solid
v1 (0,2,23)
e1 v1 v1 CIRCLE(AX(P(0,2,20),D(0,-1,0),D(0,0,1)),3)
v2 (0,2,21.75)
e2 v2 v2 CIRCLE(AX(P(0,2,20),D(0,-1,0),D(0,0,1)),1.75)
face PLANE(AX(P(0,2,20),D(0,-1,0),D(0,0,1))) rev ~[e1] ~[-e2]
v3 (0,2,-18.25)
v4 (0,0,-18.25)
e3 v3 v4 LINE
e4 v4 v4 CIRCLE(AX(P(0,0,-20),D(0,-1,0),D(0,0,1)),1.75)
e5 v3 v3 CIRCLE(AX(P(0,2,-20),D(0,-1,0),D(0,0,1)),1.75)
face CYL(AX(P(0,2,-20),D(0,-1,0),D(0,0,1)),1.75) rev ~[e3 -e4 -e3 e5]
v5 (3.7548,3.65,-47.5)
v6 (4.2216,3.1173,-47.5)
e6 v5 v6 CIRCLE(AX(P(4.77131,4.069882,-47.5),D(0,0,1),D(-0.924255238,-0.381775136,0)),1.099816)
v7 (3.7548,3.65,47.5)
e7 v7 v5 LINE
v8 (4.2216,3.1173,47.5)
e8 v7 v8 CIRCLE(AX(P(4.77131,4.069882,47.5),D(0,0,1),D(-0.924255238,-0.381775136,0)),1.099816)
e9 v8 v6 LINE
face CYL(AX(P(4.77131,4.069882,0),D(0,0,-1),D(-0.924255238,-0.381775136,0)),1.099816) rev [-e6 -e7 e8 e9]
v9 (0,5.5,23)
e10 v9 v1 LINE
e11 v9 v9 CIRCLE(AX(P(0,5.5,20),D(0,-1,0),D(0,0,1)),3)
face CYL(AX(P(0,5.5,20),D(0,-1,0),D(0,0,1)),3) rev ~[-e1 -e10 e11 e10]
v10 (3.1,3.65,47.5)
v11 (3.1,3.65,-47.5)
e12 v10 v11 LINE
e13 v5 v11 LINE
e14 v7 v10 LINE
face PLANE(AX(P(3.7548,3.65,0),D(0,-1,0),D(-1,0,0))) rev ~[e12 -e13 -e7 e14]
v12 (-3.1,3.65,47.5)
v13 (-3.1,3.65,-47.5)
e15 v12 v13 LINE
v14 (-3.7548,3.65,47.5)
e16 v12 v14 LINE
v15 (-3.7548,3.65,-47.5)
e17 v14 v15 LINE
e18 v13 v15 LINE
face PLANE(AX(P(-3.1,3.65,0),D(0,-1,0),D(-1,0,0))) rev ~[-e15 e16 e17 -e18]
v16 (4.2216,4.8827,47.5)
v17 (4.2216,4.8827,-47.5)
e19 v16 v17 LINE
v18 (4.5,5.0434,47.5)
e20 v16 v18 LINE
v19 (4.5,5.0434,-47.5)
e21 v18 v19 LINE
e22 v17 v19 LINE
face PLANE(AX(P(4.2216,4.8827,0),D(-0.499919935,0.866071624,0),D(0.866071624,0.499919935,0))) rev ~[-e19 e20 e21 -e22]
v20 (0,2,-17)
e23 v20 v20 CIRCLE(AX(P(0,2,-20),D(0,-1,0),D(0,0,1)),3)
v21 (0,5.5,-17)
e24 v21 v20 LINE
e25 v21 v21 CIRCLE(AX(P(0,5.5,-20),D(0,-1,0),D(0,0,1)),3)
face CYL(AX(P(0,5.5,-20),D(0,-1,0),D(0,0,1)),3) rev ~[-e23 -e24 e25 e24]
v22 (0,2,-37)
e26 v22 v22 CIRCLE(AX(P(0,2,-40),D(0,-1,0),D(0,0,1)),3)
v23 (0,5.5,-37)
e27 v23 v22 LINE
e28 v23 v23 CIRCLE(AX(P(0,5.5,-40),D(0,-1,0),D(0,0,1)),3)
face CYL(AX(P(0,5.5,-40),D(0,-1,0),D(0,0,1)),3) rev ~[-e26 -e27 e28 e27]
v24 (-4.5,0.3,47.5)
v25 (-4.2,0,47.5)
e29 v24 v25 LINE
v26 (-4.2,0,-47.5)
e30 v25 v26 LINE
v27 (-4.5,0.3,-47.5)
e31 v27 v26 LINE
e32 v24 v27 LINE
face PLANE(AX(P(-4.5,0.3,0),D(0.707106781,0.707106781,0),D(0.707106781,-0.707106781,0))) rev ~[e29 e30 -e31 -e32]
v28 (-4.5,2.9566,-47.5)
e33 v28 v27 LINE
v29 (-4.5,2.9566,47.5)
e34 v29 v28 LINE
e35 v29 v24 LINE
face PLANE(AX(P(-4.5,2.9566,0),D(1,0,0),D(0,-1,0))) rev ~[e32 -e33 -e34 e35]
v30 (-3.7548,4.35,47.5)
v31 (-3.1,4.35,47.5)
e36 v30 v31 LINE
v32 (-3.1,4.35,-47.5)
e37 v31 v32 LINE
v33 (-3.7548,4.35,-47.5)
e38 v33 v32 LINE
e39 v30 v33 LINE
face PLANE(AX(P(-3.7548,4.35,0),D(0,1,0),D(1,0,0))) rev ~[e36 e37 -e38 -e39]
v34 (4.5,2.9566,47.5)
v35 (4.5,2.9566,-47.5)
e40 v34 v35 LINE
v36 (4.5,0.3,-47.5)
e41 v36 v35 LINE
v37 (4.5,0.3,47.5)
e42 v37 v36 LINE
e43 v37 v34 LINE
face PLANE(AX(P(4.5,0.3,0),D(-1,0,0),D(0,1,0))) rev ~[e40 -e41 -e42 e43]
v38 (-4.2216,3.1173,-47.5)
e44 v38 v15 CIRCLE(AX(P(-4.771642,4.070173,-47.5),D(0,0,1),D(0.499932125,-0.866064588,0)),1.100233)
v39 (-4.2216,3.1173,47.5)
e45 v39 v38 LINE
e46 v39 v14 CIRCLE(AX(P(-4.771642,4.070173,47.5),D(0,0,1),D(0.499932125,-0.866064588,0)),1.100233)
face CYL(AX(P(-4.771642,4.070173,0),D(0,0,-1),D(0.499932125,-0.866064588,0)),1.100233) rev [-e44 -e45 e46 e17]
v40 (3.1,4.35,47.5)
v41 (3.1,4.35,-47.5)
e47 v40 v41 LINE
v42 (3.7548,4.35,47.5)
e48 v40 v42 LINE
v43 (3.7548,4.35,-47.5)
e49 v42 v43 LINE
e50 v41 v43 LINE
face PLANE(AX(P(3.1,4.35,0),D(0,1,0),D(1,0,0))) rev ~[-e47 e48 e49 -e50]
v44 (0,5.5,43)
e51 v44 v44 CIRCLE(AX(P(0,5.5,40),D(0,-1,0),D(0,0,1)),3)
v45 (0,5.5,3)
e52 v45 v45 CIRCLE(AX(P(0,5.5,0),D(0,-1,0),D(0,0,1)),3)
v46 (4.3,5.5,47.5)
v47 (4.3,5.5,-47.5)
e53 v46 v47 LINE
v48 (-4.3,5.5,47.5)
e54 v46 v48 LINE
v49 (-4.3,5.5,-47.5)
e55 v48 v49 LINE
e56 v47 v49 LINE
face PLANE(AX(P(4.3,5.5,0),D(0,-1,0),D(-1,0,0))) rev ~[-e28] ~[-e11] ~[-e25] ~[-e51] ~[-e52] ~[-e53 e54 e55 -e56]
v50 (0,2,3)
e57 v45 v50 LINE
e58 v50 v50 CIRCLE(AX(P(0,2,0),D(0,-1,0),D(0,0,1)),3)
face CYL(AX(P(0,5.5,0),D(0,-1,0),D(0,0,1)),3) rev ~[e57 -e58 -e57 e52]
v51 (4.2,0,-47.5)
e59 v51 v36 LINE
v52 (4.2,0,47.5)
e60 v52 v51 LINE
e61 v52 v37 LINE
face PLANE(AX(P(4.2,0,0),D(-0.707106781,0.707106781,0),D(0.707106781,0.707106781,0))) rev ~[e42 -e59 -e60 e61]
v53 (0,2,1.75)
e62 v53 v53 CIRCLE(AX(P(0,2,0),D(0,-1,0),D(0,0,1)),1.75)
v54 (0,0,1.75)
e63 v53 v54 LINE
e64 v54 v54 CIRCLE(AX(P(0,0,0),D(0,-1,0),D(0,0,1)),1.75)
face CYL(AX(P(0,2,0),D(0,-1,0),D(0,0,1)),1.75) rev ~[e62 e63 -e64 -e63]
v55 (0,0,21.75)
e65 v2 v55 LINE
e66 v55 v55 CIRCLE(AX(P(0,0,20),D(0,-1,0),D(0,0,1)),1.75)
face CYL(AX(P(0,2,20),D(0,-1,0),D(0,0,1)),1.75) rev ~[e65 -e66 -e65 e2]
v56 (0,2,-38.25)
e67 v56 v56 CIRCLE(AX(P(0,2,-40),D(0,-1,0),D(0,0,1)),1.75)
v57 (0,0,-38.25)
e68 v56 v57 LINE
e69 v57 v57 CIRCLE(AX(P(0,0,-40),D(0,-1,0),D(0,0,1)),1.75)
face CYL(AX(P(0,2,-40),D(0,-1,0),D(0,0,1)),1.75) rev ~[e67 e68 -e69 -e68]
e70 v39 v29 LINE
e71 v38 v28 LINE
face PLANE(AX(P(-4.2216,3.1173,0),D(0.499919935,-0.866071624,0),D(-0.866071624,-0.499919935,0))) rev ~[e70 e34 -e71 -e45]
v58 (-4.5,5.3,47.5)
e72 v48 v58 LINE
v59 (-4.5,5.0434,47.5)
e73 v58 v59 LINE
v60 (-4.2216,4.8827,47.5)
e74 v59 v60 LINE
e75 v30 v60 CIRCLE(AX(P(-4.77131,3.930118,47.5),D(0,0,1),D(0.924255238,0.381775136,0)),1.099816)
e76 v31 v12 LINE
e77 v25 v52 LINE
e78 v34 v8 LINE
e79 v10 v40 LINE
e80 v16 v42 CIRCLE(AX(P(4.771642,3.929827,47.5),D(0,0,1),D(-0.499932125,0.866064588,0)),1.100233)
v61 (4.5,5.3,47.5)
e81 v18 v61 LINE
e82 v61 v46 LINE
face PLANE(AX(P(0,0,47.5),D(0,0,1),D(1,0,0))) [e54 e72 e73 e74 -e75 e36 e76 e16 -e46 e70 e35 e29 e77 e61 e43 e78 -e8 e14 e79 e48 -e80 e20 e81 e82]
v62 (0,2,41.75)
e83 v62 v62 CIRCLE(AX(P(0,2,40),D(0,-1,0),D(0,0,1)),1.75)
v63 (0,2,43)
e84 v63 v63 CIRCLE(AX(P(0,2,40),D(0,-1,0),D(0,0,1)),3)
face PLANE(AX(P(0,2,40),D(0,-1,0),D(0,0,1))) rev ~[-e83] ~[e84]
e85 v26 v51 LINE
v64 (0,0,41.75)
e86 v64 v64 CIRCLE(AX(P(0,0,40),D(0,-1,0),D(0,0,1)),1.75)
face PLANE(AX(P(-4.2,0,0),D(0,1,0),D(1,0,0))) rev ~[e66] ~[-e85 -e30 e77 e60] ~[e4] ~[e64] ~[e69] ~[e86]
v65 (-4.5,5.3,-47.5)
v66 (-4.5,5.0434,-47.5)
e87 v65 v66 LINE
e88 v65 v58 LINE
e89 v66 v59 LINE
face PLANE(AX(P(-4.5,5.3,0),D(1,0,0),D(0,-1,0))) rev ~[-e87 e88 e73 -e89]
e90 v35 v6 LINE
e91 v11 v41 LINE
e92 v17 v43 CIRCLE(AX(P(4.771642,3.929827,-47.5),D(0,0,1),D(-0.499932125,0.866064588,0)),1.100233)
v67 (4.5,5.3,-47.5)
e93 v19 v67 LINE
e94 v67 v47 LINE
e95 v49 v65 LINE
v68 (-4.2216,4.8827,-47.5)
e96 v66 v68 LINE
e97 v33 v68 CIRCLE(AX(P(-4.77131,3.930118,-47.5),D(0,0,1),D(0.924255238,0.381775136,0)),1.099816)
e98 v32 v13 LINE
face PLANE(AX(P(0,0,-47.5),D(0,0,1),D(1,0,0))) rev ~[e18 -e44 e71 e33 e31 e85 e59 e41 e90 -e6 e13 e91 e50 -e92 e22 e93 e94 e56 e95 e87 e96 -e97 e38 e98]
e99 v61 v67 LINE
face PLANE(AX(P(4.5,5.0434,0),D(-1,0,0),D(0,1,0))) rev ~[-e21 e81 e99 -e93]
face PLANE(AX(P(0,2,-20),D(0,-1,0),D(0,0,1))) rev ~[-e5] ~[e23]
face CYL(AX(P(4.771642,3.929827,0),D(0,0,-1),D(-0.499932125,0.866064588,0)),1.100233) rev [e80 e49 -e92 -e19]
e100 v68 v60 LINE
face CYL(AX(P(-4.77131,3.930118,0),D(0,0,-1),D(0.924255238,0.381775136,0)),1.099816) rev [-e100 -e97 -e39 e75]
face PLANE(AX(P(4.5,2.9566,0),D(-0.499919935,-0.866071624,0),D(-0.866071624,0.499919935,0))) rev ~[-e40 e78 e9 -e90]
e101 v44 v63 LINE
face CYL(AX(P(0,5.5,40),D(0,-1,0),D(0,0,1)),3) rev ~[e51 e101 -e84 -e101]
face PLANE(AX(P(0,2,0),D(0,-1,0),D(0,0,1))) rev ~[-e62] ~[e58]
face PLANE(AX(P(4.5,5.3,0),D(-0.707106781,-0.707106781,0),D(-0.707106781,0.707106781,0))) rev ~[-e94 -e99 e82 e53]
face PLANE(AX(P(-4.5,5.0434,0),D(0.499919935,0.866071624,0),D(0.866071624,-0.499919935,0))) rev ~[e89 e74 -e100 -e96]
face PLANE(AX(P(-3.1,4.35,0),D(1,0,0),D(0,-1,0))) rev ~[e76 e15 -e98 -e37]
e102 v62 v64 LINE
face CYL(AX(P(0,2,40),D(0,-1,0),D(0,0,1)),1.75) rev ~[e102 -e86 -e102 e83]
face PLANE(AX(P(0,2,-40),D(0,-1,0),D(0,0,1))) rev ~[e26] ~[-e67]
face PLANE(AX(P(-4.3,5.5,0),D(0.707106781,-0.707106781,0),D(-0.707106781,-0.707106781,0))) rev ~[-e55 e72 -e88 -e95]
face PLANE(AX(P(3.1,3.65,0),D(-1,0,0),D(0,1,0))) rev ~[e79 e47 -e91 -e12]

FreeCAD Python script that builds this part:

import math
import FreeCAD as App
import Part
import Sketcher
from FreeCAD import Vector
Q = App.Units.Quantity

doc = App.newDocument("Part")
body = doc.addObject("PartDesign::Body", "Body")

# Sketch on XY plane
sketch1 = doc.addObject("Sketcher::SketchObject", "Sketch")
body.addObject(sketch1)
sketch1.AttachmentSupport = (doc.XY_Plane, [""])
sketch1.MapMode = "FlatFace"
sketch1.addGeometry([
    Part.LineSegment(Vector(-4.3, 5.5, 0), Vector(-4.5, 5.3, 0)),  # 0
    Part.LineSegment(Vector(-4.5, 5.3, 0), Vector(-4.5, 5.04, 0)),  # 1
    Part.LineSegment(Vector(-4.5, 5.04, 0), Vector(-4.22, 4.88, 0)),  # 2
    Part.ArcOfCircle(Part.Circle(Vector(-4.77, 3.93, 0), Vector(0, 0, 1), 1.1), math.radians(22), math.radians(60)),  # 3
    Part.LineSegment(Vector(-3.75, 4.35, 0), Vector(-3.1, 4.35, 0)),  # 4
    Part.LineSegment(Vector(-3.1, 4.35, 0), Vector(-3.1, 3.65, 0)),  # 5
    Part.LineSegment(Vector(-3.1, 3.65, 0), Vector(-3.75, 3.65, 0)),  # 6
    Part.ArcOfCircle(Part.Circle(Vector(-4.77, 4.07, 0), Vector(0, 0, 1), 1.1), math.radians(-60), math.radians(-22)),  # 7
    Part.LineSegment(Vector(-4.22, 3.12, 0), Vector(-4.5, 2.96, 0)),  # 8
    Part.LineSegment(Vector(-4.5, 2.96, 0), Vector(-4.5, 0.3, 0)),  # 9
    Part.LineSegment(Vector(-4.5, 0.3, 0), Vector(-4.2, 0, 0)),  # 10
    Part.LineSegment(Vector(-4.2, 0, 0), Vector(4.2, 0, 0)),  # 11
    Part.LineSegment(Vector(4.2, 0, 0), Vector(4.5, 0.3, 0)),  # 12
    Part.LineSegment(Vector(4.5, 0.3, 0), Vector(4.5, 2.96, 0)),  # 13
    Part.LineSegment(Vector(4.5, 2.96, 0), Vector(4.22, 3.12, 0)),  # 14
    Part.ArcOfCircle(Part.Circle(Vector(4.77, 4.07, 0), Vector(0, 0, 1), 1.1), math.radians(-158), math.radians(-120)),  # 15
    Part.LineSegment(Vector(3.75, 3.65, 0), Vector(3.1, 3.65, 0)),  # 16
    Part.LineSegment(Vector(3.1, 3.65, 0), Vector(3.1, 4.35, 0)),  # 17
    Part.LineSegment(Vector(3.1, 4.35, 0), Vector(3.75, 4.35, 0)),  # 18
    Part.ArcOfCircle(Part.Circle(Vector(4.77, 3.93, 0), Vector(0, 0, 1), 1.1), math.radians(120), math.radians(158)),  # 19
    Part.LineSegment(Vector(4.22, 4.88, 0), Vector(4.5, 5.04, 0)),  # 20
    Part.LineSegment(Vector(4.5, 5.04, 0), Vector(4.5, 5.3, 0)),  # 21
    Part.LineSegment(Vector(4.5, 5.3, 0), Vector(4.3, 5.5, 0)),  # 22
    Part.LineSegment(Vector(4.3, 5.5, 0), Vector(-4.3, 5.5, 0)),  # 23
], False)
sketch1.addConstraint([
    Sketcher.Constraint("Coincident", 0, 2, 1, 1),
    Sketcher.Constraint("Coincident", 1, 2, 2, 1),
    Sketcher.Constraint("Tangent", 2, 2, 3, 2),
    Sketcher.Constraint("Coincident", 3, 1, 4, 1),
    Sketcher.Constraint("Coincident", 4, 2, 5, 1),
    Sketcher.Constraint("Coincident", 5, 2, 6, 1),
    Sketcher.Constraint("Coincident", 6, 2, 7, 2),
    Sketcher.Constraint("Tangent", 7, 1, 8, 1),
    Sketcher.Constraint("Coincident", 8, 2, 9, 1),
    Sketcher.Constraint("Coincident", 9, 2, 10, 1),
    Sketcher.Constraint("Coincident", 10, 2, 11, 1),
    Sketcher.Constraint("Coincident", 11, 2, 12, 1),
    Sketcher.Constraint("Coincident", 12, 2, 13, 1),
    Sketcher.Constraint("Coincident", 13, 2, 14, 1),
    Sketcher.Constraint("Tangent", 14, 2, 15, 2),
    Sketcher.Constraint("Coincident", 15, 1, 16, 1),
    Sketcher.Constraint("Coincident", 16, 2, 17, 1),
    Sketcher.Constraint("Coincident", 17, 2, 18, 1),
    Sketcher.Constraint("Coincident", 18, 2, 19, 2),
    Sketcher.Constraint("Tangent", 19, 1, 20, 1),
    Sketcher.Constraint("Coincident", 20, 2, 21, 1),
    Sketcher.Constraint("Coincident", 21, 2, 22, 1),
    Sketcher.Constraint("Coincident", 22, 2, 23, 1),
    Sketcher.Constraint("Coincident", 23, 2, 0, 1),
    Sketcher.Constraint("Vertical", 1),
    Sketcher.Constraint("Horizontal", 4),
    Sketcher.Constraint("Vertical", 5),
    Sketcher.Constraint("Horizontal", 6),
    Sketcher.Constraint("Vertical", 9),
    Sketcher.Constraint("Horizontal", 11),
    Sketcher.Constraint("Vertical", 13),
    Sketcher.Constraint("Horizontal", 16),
    Sketcher.Constraint("Vertical", 17),
    Sketcher.Constraint("Horizontal", 18),
    Sketcher.Constraint("Vertical", 21),
    Sketcher.Constraint("Horizontal", 23),
    Sketcher.Constraint("Equal", 3, 7),
    Sketcher.Constraint("Equal", 7, 15),
    Sketcher.Constraint("Equal", 15, 19),
    Sketcher.Constraint("Symmetric", 10, 2, 11, 2, -1, 1),
    Sketcher.Constraint("Symmetric", 7, 3, 15, 3, -2),
    Sketcher.Constraint("Symmetric", 3, 3, 19, 3, -2),
    Sketcher.Constraint("Symmetric", 9, 2, 12, 2, -2),
    Sketcher.Constraint("Symmetric", 5, 2, 16, 2, -2),
    Sketcher.Constraint("Symmetric", 1, 2, 20, 2, -2),
    Sketcher.Constraint("Perpendicular", 0, 10),
    Sketcher.Constraint("Perpendicular", 10, 12),
    Sketcher.Constraint("Parallel", 2, 14),
    Sketcher.Constraint("Parallel", 8, 20),
    Sketcher.Constraint("Perpendicular", 12, 22),
    Sketcher.Constraint("Horizontal", 4, 2, 17, 2),
    Sketcher.Constraint("Horizontal", 0, 2, 21, 2),
    Sketcher.Constraint("Vertical", 3, 3, 7, 3),
    Sketcher.Constraint("Vertical", 3, 1, 6, 2),
    Sketcher.Constraint("Vertical", 1, 2, 8, 2),
    Sketcher.Constraint("Radius", 3, Q("1.1 mm")),
    Sketcher.Constraint("DistanceX", 11, 1, 11, 2, Q("8.4 mm")),
    Sketcher.Constraint("DistanceX", 23, 2, 23, 1, Q("8.6 mm")),
    Sketcher.Constraint("DistanceY", 5, 2, 5, 1, Q("0.7 mm")),
    Sketcher.Constraint("DistanceX", 0, 2, -1, 1, Q("4.5 mm")),
    Sketcher.Constraint("DistanceY", -1, 1, 0, 2, Q("5.3 mm")),
    Sketcher.Constraint("DistanceX", 4, 2, -1, 1, Q("3.1 mm")),
    Sketcher.Constraint("DistanceY", -1, 1, 3, 3, Q("3.93 mm")),
    Sketcher.Constraint("DistanceY", -1, 1, 7, 3, Q("4.07 mm")),
    Sketcher.Constraint("DistanceX", 7, 3, 2, 2, Q("0.55 mm")),
    Sketcher.Constraint("DistanceX", 4, 1, 4, 2, Q("0.6548 mm")),
])
pad1 = doc.addObject("PartDesign::Pad", "Pad")
body.addObject(pad1)
pad1.Profile = sketch1
pad1.Length = 95
pad1.Midplane = True

# Sketch on XZ plane
sketch2 = doc.addObject("Sketcher::SketchObject", "Sketch001")
body.addObject(sketch2)
sketch2.AttachmentSupport = (doc.XZ_Plane, [""])
sketch2.MapMode = "FlatFace"
sketch2.AttachmentOffset = App.Placement(Vector(0, 0, -5.5), App.Rotation())
sketch2.addGeometry(Part.Circle(Vector(0, -40, 0), Vector(0, 0, 1), 1.8), False)
sketch2.addConstraint([
    Sketcher.Constraint("PointOnObject", 0, 3, -2),
    Sketcher.Constraint("Diameter", 0, Q("3.5 mm")),
    Sketcher.Constraint("DistanceY", 0, 3, -1, 1, Q("40 mm")),
])
doc.recompute()
hole = doc.addObject("PartDesign::Hole", "Hole")
body.addObject(hole)
hole.Profile = sketch2
hole.ThreadType = "None"
hole.Diameter = 3.5
hole.DepthType = "Dimension"
hole.Depth = 5.5
hole.DrillPoint = "Flat"
hole.HoleCutType = "Counterbore"
hole.HoleCutDiameter = 6
hole.HoleCutDepth = 3.5
hole.Reversed = True
doc.recompute()

linearpattern = doc.addObject("PartDesign::LinearPattern", "LinearPattern")
body.addObject(linearpattern)
linearpattern.Originals = [hole]
linearpattern.Direction = (doc.Z_Axis, [""])
linearpattern.Mode = "offset"
linearpattern.Offset = 20
linearpattern.Occurrences = 5
body.Tip = linearpattern

doc.recompute()
